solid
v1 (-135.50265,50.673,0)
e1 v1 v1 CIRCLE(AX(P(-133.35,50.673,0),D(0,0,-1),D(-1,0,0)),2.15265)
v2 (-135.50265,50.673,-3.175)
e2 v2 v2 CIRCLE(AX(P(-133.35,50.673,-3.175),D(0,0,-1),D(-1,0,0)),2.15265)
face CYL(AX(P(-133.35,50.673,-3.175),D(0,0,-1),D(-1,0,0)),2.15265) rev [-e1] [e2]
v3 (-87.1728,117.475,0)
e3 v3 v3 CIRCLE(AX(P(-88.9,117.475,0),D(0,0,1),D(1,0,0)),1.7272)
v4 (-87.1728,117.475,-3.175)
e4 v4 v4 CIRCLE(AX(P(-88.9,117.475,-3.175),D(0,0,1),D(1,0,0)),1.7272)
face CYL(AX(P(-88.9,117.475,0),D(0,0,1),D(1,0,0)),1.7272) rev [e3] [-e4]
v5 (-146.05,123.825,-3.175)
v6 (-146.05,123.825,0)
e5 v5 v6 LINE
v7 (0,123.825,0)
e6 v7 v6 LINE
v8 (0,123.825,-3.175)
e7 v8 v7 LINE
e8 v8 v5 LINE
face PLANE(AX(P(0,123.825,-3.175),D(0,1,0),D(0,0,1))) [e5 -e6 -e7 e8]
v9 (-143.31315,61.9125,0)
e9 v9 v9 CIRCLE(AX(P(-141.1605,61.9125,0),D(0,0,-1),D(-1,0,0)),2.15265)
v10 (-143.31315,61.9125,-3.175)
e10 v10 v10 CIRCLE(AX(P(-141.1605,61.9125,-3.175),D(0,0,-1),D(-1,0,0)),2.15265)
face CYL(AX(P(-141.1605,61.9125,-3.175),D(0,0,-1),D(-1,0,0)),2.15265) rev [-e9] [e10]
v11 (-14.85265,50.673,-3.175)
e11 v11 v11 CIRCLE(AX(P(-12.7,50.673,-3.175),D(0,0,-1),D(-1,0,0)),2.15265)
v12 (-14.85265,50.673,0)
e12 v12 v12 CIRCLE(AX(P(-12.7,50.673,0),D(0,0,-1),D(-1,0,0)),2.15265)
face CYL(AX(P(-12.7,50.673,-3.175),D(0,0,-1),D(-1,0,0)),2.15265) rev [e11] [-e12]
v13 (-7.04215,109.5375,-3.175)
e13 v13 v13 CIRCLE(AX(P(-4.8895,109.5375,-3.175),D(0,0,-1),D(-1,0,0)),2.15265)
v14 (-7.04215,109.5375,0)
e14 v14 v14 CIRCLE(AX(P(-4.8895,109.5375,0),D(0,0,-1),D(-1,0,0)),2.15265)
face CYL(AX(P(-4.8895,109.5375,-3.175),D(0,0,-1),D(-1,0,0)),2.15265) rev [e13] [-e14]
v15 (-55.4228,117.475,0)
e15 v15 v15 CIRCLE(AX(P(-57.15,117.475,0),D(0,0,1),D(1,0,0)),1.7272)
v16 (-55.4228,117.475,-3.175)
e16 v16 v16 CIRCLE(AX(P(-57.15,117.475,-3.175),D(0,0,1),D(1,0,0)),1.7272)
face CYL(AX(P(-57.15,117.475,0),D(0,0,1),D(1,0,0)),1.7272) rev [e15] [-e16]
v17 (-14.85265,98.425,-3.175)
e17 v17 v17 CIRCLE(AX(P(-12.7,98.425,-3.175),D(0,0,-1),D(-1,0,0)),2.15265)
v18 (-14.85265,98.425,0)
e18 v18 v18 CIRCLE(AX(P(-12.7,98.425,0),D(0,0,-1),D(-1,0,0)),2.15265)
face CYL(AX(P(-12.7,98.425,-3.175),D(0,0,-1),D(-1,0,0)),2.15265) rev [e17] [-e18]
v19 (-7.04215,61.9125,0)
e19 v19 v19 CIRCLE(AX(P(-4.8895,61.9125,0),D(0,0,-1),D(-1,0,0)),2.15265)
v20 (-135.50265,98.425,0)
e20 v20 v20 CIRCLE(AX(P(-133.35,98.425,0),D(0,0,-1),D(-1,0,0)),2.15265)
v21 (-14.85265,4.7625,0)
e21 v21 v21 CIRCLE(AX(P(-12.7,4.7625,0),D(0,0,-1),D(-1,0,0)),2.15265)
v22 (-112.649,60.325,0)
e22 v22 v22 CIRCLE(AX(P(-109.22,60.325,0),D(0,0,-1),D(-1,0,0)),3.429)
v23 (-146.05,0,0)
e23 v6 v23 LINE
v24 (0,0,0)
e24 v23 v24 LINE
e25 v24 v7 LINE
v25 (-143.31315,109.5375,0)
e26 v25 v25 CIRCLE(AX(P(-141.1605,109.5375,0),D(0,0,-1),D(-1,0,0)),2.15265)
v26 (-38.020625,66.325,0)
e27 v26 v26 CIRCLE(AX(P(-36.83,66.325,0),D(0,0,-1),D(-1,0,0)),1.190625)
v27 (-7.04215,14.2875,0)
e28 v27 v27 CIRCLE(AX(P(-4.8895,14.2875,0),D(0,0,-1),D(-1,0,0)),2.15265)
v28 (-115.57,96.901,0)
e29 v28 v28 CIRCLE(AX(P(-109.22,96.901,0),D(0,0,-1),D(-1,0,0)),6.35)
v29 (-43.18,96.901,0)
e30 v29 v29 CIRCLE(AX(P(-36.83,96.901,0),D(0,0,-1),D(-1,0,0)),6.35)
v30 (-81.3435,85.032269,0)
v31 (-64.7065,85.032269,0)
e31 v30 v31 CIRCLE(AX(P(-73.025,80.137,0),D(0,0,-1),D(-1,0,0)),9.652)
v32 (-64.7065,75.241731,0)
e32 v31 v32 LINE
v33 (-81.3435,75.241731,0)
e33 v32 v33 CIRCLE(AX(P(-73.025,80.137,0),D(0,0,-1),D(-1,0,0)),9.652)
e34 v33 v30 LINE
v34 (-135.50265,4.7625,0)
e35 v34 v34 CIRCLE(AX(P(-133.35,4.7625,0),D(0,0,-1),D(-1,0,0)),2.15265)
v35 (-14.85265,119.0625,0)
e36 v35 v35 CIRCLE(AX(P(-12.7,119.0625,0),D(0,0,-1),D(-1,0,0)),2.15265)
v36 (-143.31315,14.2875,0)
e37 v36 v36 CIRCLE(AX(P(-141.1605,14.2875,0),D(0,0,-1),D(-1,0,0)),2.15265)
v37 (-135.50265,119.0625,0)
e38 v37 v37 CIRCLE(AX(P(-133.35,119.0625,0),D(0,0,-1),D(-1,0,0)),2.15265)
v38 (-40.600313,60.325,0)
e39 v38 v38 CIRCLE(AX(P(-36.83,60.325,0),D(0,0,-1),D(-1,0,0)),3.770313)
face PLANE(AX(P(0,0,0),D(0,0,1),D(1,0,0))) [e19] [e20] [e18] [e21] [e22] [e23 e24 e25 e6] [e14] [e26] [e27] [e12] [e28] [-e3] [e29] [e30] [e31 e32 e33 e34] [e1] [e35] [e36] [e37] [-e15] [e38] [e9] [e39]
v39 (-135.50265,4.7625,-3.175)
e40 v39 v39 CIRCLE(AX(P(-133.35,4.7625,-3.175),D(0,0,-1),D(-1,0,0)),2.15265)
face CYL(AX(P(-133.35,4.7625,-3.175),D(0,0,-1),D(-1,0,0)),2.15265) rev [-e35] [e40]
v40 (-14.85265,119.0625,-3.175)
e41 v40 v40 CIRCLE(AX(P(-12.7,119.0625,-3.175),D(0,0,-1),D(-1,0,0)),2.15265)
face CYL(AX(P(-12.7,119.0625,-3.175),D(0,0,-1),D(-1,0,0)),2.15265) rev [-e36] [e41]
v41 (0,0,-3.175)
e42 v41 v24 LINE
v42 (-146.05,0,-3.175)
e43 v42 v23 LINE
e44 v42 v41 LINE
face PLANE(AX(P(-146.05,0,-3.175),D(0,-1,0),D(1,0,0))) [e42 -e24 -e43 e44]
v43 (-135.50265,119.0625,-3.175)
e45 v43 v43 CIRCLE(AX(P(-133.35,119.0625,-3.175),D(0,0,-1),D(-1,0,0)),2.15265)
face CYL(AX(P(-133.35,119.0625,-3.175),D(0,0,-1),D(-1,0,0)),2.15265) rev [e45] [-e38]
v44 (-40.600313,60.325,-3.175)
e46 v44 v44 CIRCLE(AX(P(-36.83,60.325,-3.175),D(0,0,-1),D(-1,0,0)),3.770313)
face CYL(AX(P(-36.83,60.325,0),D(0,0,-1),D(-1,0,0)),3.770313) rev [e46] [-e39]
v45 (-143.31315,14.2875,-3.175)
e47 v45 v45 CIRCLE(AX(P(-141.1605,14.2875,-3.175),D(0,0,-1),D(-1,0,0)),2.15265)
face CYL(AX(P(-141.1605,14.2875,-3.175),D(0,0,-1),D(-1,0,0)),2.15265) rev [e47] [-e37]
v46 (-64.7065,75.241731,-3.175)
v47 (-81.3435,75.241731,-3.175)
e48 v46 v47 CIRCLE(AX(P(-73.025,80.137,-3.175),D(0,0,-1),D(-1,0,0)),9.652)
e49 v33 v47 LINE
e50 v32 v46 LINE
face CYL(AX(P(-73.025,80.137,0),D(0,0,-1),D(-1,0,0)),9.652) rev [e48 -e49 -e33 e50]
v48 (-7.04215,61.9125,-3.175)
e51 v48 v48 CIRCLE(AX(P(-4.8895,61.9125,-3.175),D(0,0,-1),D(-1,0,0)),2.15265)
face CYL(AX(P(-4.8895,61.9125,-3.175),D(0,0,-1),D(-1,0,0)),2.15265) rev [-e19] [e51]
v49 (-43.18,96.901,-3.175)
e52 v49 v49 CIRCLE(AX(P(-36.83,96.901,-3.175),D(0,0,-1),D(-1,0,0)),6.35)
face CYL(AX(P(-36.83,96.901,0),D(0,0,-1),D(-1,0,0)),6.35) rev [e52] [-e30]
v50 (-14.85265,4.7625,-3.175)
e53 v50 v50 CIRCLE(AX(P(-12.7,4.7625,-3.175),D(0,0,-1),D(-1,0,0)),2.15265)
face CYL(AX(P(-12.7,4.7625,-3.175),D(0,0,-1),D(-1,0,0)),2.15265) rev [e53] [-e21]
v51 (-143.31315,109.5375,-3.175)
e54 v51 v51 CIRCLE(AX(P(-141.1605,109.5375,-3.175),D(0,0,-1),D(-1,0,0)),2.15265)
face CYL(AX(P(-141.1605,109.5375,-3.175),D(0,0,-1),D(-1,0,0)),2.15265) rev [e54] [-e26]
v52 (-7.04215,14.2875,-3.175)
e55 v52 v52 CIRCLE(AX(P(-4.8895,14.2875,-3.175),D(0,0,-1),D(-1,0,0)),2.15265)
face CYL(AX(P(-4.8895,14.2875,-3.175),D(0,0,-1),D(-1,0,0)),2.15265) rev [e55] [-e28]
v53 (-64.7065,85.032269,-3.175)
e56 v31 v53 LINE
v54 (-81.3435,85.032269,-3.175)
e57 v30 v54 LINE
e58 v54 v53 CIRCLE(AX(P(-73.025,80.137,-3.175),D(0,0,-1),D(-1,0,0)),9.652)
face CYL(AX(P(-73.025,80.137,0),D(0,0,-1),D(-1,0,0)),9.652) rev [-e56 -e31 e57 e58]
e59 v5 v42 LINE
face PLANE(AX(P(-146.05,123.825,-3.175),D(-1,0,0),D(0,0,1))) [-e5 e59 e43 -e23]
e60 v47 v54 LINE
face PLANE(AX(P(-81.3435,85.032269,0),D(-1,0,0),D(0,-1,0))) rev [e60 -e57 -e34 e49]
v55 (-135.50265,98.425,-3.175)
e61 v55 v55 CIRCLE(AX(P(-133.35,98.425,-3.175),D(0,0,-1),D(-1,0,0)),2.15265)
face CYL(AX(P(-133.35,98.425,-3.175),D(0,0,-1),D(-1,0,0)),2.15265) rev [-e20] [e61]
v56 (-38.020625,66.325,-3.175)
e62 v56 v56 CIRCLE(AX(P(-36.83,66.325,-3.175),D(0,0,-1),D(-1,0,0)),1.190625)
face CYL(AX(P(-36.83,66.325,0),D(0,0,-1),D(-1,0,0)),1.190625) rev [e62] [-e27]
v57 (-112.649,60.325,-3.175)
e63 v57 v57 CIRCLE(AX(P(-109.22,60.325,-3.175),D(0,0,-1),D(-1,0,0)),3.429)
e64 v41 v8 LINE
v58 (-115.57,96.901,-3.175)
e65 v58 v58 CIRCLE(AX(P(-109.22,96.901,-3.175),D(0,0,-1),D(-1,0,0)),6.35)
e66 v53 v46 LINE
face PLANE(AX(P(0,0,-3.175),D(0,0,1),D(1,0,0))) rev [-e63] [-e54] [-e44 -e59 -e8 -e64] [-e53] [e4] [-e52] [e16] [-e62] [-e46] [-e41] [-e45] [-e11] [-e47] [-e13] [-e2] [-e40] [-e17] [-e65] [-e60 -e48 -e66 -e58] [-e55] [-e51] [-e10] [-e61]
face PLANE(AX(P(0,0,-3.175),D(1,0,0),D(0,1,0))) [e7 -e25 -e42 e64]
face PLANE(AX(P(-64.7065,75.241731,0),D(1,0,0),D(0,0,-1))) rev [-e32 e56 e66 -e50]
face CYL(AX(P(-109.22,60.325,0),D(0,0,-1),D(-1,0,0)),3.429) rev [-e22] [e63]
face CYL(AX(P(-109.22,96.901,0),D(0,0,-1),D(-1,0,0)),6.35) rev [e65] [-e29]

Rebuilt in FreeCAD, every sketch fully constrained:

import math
import FreeCAD as App
import Part
import Sketcher

V = App.Vector
Q = App.Units.Quantity

doc = App.newDocument("Part")
body = doc.addObject("PartDesign::Body", "Body")

sketch1 = body.newObject("Sketcher::SketchObject", "Sketch")
sketch1.AttachmentSupport = (doc.getObject("XY_Plane"), [""])
sketch1.MapMode = "FlatFace"
sketch1.addGeometry(Part.LineSegment(V(-146, 124, 0), V(-146, 0, 0)), False)
sketch1.addGeometry(Part.LineSegment(V(-146, 0, 0), V(0, 0, 0)), False)
sketch1.addGeometry(Part.LineSegment(V(0, 0, 0), V(0, 124, 0)), False)
sketch1.addGeometry(Part.LineSegment(V(0, 124, 0), V(-146, 124, 0)), False)
sketch1.addConstraint(Sketcher.Constraint("Coincident", 0, 2, 1, 1))
sketch1.addConstraint(Sketcher.Constraint("Coincident", 1, 2, 2, 1))
sketch1.addConstraint(Sketcher.Constraint("Coincident", 2, 2, 3, 1))
sketch1.addConstraint(Sketcher.Constraint("Coincident", 3, 2, 0, 1))
sketch1.addConstraint(Sketcher.Constraint("Vertical", 0))
sketch1.addConstraint(Sketcher.Constraint("Horizontal", 1))
sketch1.addConstraint(Sketcher.Constraint("Vertical", 2))
sketch1.addConstraint(Sketcher.Constraint("Horizontal", 3))
sketch1.addConstraint(Sketcher.Constraint("Coincident", 1, 2, -1, 1))
sketch1.addConstraint(Sketcher.Constraint("DistanceX", 1, 1, 1, 2, Q("5.75 in")))
sketch1.addConstraint(Sketcher.Constraint("DistanceY", 0, 2, 0, 1, Q("4.875 in")))
pad1 = body.newObject("PartDesign::Pad", "Pad")
pad1.Profile = sketch1
pad1.Length = Q("0.125 in")
pad1.Reversed = True

sketch2 = body.newObject("Sketcher::SketchObject", "Sketch001")
sketch2.AttachmentSupport = (doc.getObject("XY_Plane"), [""])
sketch2.MapMode = "FlatFace"
sketch2.AttachmentOffset = App.Placement(V(0, 0, -0.125 * 25.4), App.Rotation())
sketch2.addGeometry(Part.Circle(V(-12.7, 119.1, 0), V(0, 0, 1), 2.2), False)
sketch2.addGeometry(Part.Circle(V(-133.3, 119.1, 0), V(0, 0, 1), 2.2), False)
sketch2.addGeometry(Part.Circle(V(-141.2, 109.5, 0), V(0, 0, 1), 2.2), False)
sketch2.addGeometry(Part.Circle(V(-133.3, 98.4, 0), V(0, 0, 1), 2.2), False)
sketch2.addGeometry(Part.Circle(V(-141.2, 61.9, 0), V(0, 0, 1), 2.2), False)
sketch2.addGeometry(Part.Circle(V(-133.3, 50.7, 0), V(0, 0, 1), 2.2), False)
sketch2.addGeometry(Part.Circle(V(-133.3, 4.8, 0), V(0, 0, 1), 2.2), False)
sketch2.addGeometry(Part.Circle(V(-12.7, 4.8, 0), V(0, 0, 1), 2.2), False)
sketch2.addGeometry(Part.Circle(V(-12.7, 50.7, 0), V(0, 0, 1), 2.2), False)
sketch2.addGeometry(Part.Circle(V(-12.7, 98.4, 0), V(0, 0, 1), 2.2), False)
sketch2.addGeometry(Part.Circle(V(-4.9, 109.5, 0), V(0, 0, 1), 2.2), False)
sketch2.addGeometry(Part.Circle(V(-141.2, 14.3, 0), V(0, 0, 1), 2.2), False)
sketch2.addGeometry(Part.Circle(V(-4.9, 14.3, 0), V(0, 0, 1), 2.2), False)
sketch2.addGeometry(Part.Circle(V(-4.9, 61.9, 0), V(0, 0, 1), 2.2), False)
sketch2.addConstraint(Sketcher.Constraint("Equal", 0, 1))
sketch2.addConstraint(Sketcher.Constraint("Equal", 1, 2))
sketch2.addConstraint(Sketcher.Constraint("Equal", 2, 3))
sketch2.addConstraint(Sketcher.Constraint("Equal", 3, 4))
sketch2.addConstraint(Sketcher.Constraint("Equal", 4, 5))
sketch2.addConstraint(Sketcher.Constraint("Equal", 5, 6))
sketch2.addConstraint(Sketcher.Constraint("Equal", 6, 7))
sketch2.addConstraint(Sketcher.Constraint("Equal", 7, 8))
sketch2.addConstraint(Sketcher.Constraint("Equal", 8, 9))
sketch2.addConstraint(Sketcher.Constraint("Equal", 9, 10))
sketch2.addConstraint(Sketcher.Constraint("Equal", 10, 11))
sketch2.addConstraint(Sketcher.Constraint("Equal", 11, 12))
sketch2.addConstraint(Sketcher.Constraint("Equal", 12, 13))
sketch2.addConstraint(Sketcher.Constraint("Horizontal", 0, 3, 1, 3))
sketch2.addConstraint(Sketcher.Constraint("Horizontal", 6, 3, 7, 3))
sketch2.addConstraint(Sketcher.Constraint("Horizontal", 5, 3, 8, 3))
sketch2.addConstraint(Sketcher.Constraint("Horizontal", 3, 3, 9, 3))
sketch2.addConstraint(Sketcher.Constraint("Horizontal", 2, 3, 10, 3))
sketch2.addConstraint(Sketcher.Constraint("Horizontal", 11, 3, 12, 3))
sketch2.addConstraint(Sketcher.Constraint("Horizontal", 4, 3, 13, 3))
sketch2.addConstraint(Sketcher.Constraint("Vertical", 1, 3, 3, 3))
sketch2.addConstraint(Sketcher.Constraint("Vertical", 2, 3, 4, 3))
sketch2.addConstraint(Sketcher.Constraint("Vertical", 3, 3, 5, 3))
sketch2.addConstraint(Sketcher.Constraint("Vertical", 5, 3, 6, 3))
sketch2.addConstraint(Sketcher.Constraint("Vertical", 0, 3, 7, 3))
sketch2.addConstraint(Sketcher.Constraint("Vertical", 7, 3, 8, 3))
sketch2.addConstraint(Sketcher.Constraint("Vertical", 8, 3, 9, 3))
sketch2.addConstraint(Sketcher.Constraint("Vertical", 4, 3, 11, 3))
sketch2.addConstraint(Sketcher.Constraint("Vertical", 10, 3, 12, 3))
sketch2.addConstraint(Sketcher.Constraint("Vertical", 12, 3, 13, 3))
sketch2.addConstraint(Sketcher.Constraint("Diameter", 0, Q("0.1695 in")))
sketch2.addConstraint(Sketcher.Constraint("DistanceX", 0, 3, -1, 1, Q("0.5 in")))
sketch2.addConstraint(Sketcher.Constraint("DistanceY", 6, 3, 1, 3, Q("4.5 in")))
sketch2.addConstraint(Sketcher.Constraint("DistanceX", 1, 3, -1, 1, Q("5.25 in")))
sketch2.addConstraint(Sketcher.Constraint("DistanceY", 4, 3, 1, 3, Q("2.25 in")))
sketch2.addConstraint(Sketcher.Constraint("DistanceY", 5, 3, 3, 3, Q("1.88 in")))
sketch2.addConstraint(Sketcher.Constraint("DistanceY", 11, 3, 2, 3, Q("3.75 in")))
sketch2.addConstraint(Sketcher.Constraint("DistanceY", -1, 1, 0, 3, Q("4.6875 in")))
sketch2.addConstraint(Sketcher.Constraint("DistanceY", -1, 1, 2, 3, Q("4.3125 in")))
sketch2.addConstraint(Sketcher.Constraint("DistanceY", -1, 1, 3, 3, Q("3.875 in")))
sketch2.addConstraint(Sketcher.Constraint("DistanceX", 2, 3, -1, 1, Q("5.5575 in")))
sketch2.addConstraint(Sketcher.Constraint("DistanceX", 10, 3, -1, 1, Q("0.1925 in")))
doc.recompute()
hole = body.newObject("PartDesign::Hole", "Hole")
hole.Profile = sketch2
hole.ThreadType = "None"
hole.Diameter = Q("0.1695 in")
hole.DepthType = "ThroughAll"
hole.Reversed = True

sketch3 = body.newObject("Sketcher::SketchObject", "Sketch002")
sketch3.AttachmentSupport = (doc.getObject("XY_Plane"), [""])
sketch3.MapMode = "FlatFace"
sketch3.AttachmentOffset = App.Placement(V(0, 0, -0.125 * 25.4), App.Rotation())
sketch3.addGeometry(Part.Circle(V(-36.8, 96.9, 0), V(0, 0, 1), 6.3), False)
sketch3.addGeometry(Part.Circle(V(-36.8, 60.3, 0), V(0, 0, 1), 3.8), False)
sketch3.addGeometry(Part.Circle(V(-109.2, 60.3, 0), V(0, 0, 1), 3.4), False)
sketch3.addGeometry(Part.Circle(V(-109.2, 96.9, 0), V(0, 0, 1), 6.3), False)
sketch3.addGeometry(Part.Circle(V(-36.8, 66.3, 0), V(0, 0, 1), 1.2), False)
sketch3.addGeometry(Part.LineSegment(V(-81.3, 75.2, 0), V(-81.3, 85, 0)), False)
sketch3.addGeometry(Part.ArcOfCircle(Part.Circle(V(-73, 80.1, 0), V(0, 0, 1), 9.7), math.radians(30), math.radians(150)), False)
sketch3.addGeometry(Part.LineSegment(V(-64.7, 85, 0), V(-64.7, 75.2, 0)), False)
sketch3.addGeometry(Part.ArcOfCircle(Part.Circle(V(-73, 80.1, 0), V(0, 0, 1), 9.7), math.radians(-150), math.radians(-30)), False)
sketch3.addConstraint(Sketcher.Constraint("Coincident", 5, 2, 6, 2))
sketch3.addConstraint(Sketcher.Constraint("Coincident", 6, 1, 7, 1))
sketch3.addConstraint(Sketcher.Constraint("Coincident", 7, 2, 8, 2))
sketch3.addConstraint(Sketcher.Constraint("Coincident", 8, 1, 5, 1))
sketch3.addConstraint(Sketcher.Constraint("Vertical", 5))
sketch3.addConstraint(Sketcher.Constraint("Vertical", 7))
sketch3.addConstraint(Sketcher.Constraint("Coincident", 8, 3, 6, 3))
sketch3.addConstraint(Sketcher.Constraint("Equal", 0, 3))
sketch3.addConstraint(Sketcher.Constraint("Equal", 6, 8))
sketch3.addConstraint(Sketcher.Constraint("Horizontal", 1, 3, 2, 3))
sketch3.addConstraint(Sketcher.Constraint("Horizontal", 0, 3, 3, 3))
sketch3.addConstraint(Sketcher.Constraint("Horizontal", 5, 2, 6, 1))
sketch3.addConstraint(Sketcher.Constraint("Vertical", 0, 3, 1, 3))
sketch3.addConstraint(Sketcher.Constraint("Vertical", 2, 3, 3, 3))
sketch3.addConstraint(Sketcher.Constraint("Vertical", 1, 3, 4, 3))
sketch3.addConstraint(Sketcher.Constraint("Diameter", 0, Q("0.5 in")))
sketch3.addConstraint(Sketcher.Constraint("Diameter", 2, Q("0.27 in")))
sketch3.addConstraint(Sketcher.Constraint("Radius", 6, Q("0.38 in")))
sketch3.addConstraint(Sketcher.Constraint("Diameter", 1, Q("0.296875 in")))
sketch3.addConstraint(Sketcher.Constraint("Diameter", 4, Q("0.09375 in")))
sketch3.addConstraint(Sketcher.Constraint("DistanceX", 2, 3, -1, 1, Q("4.3 in")))
sketch3.addConstraint(Sketcher.Constraint("DistanceX", 0, 3, -1, 1, Q("1.45 in")))
sketch3.addConstraint(Sketcher.Constraint("DistanceY", 1, 3, 0, 3, Q("1.44 in")))
sketch3.addConstraint(Sketcher.Constraint("DistanceY", 6, 3, 3, 3, Q("0.66 in")))
sketch3.addConstraint(Sketcher.Constraint("DistanceY", -1, 1, 0, 3, Q("3.815 in")))
sketch3.addConstraint(Sketcher.Constraint("DistanceX", 6, 3, -1, 1, Q("2.875 in")))
sketch3.addConstraint(Sketcher.Constraint("DistanceX", 5, 2, 6, 1, Q("0.655 in")))
sketch3.addConstraint(Sketcher.Constraint("DistanceY", -1, 1, 4, 3, Q("66.325 mm")))
pocket1 = body.newObject("PartDesign::Pocket", "Pocket")
pocket1.Profile = sketch3
pocket1.Type = "ThroughAll"
pocket1.Reversed = True

sketch4 = body.newObject("Sketcher::SketchObject", "Sketch003")
sketch4.AttachmentSupport = (doc.getObject("XY_Plane"), [""])
sketch4.MapMode = "FlatFace"
sketch4.addGeometry(Part.Circle(V(-88.9, 117.5, 0), V(0, 0, 1), 1.7), False)
sketch4.addGeometry(Part.Circle(V(-57.1, 117.5, 0), V(0, 0, 1), 1.7), False)
sketch4.addConstraint(Sketcher.Constraint("Equal", 0, 1))
sketch4.addConstraint(Sketcher.Constraint("Horizontal", 0, 3, 1, 3))
sketch4.addConstraint(Sketcher.Constraint("Diameter", 0, Q("0.136 in")))
sketch4.addConstraint(Sketcher.Constraint("DistanceX", 0, 3, -1, 1, Q("3.5 in")))
sketch4.addConstraint(Sketcher.Constraint("DistanceX", 1, 3, -1, 1, Q("2.25 in")))
sketch4.addConstraint(Sketcher.Constraint("DistanceY", -1, 1, 0, 3, Q("4.625 in")))
doc.recompute()
hole2 = body.newObject("PartDesign::Hole", "Hole001")
hole2.Profile = sketch4
hole2.ThreadType = "None"
hole2.Diameter = Q("0.136 in")
hole2.DepthType = "ThroughAll"

doc.recompute()
